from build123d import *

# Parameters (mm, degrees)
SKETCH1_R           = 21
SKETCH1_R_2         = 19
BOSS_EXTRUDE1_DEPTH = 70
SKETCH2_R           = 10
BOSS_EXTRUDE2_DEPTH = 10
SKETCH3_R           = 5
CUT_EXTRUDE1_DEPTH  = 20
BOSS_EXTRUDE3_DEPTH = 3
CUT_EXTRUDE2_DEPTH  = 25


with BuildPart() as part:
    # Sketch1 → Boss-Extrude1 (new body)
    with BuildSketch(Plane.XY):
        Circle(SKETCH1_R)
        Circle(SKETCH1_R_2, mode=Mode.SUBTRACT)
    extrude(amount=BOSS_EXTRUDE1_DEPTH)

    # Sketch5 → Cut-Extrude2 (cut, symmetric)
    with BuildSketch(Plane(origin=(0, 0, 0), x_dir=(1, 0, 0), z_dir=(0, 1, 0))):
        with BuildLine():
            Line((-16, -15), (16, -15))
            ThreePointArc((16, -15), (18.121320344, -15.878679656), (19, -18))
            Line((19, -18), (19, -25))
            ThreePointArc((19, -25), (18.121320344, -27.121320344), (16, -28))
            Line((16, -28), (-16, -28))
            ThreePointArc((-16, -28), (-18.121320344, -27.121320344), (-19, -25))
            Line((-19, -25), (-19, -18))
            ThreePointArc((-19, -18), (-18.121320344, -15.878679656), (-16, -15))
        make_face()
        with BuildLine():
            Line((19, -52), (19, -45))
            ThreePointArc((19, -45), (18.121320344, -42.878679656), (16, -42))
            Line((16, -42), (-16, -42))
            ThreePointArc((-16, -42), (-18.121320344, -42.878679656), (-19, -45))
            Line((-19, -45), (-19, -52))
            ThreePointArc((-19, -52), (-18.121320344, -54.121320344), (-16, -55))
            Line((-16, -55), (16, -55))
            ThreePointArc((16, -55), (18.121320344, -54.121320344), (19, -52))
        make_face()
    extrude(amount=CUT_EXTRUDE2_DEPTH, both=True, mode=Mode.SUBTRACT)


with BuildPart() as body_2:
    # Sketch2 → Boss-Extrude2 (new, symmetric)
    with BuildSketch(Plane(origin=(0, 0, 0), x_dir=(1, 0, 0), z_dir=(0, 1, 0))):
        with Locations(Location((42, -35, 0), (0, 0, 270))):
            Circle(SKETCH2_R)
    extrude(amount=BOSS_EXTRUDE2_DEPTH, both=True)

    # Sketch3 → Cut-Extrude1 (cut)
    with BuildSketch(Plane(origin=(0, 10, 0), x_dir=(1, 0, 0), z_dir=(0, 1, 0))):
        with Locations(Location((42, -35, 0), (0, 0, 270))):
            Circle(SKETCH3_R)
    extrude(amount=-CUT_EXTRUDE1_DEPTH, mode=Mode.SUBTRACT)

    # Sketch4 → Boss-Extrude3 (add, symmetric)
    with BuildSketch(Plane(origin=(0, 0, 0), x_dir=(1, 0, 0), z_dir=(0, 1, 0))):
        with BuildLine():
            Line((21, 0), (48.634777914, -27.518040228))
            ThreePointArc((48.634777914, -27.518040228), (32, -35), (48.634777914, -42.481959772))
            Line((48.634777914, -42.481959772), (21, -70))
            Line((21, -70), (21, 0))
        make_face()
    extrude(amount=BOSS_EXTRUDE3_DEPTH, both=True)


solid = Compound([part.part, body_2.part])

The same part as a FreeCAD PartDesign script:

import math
import FreeCAD as App
import Part
import Sketcher

V = App.Vector

doc = App.newDocument("Part")
body = doc.addObject("PartDesign::Body", "Body")

# Sketch on XY plane
sketch1 = doc.addObject("Sketcher::SketchObject", "Sketch")
body.addObject(sketch1)
sketch1.AttachmentSupport = (doc.XY_Plane, [""])
sketch1.MapMode = "FlatFace"
sketch1.addGeometry([
    Part.Circle(V(0, 0, 0), V(0, 0, 1), 21),
    Part.Circle(V(0, 0, 0), V(0, 0, 1), 19),
], False)
sketch1.addConstraint([
    Sketcher.Constraint("Coincident", 0, 3, -1, 1),
    Sketcher.Constraint("Coincident", 1, 3, -1, 1),
    Sketcher.Constraint("Diameter", 0, 42.0),
    Sketcher.Constraint("Diameter", 1, 38.0),
])
pad1 = doc.addObject("PartDesign::Pad", "Pad")
body.addObject(pad1)
pad1.Profile = sketch1
pad1.Length = 70

# Sketch on XZ plane
sketch2 = doc.addObject("Sketcher::SketchObject", "Sketch001")
body.addObject(sketch2)
sketch2.AttachmentSupport = (doc.XZ_Plane, [""])
sketch2.MapMode = "FlatFace"
sketch2.addGeometry([
    Part.LineSegment(V(16, 15, 0), V(-16, 15, 0)),  # 0
    Part.ArcOfCircle(Part.Circle(V(-16, 18, 0), V(0, 0, 1), 3), math.radians(180), math.radians(270)),  # 1
    Part.LineSegment(V(-19, 18, 0), V(-19, 25, 0)),  # 2
    Part.ArcOfCircle(Part.Circle(V(-16, 25, 0), V(0, 0, 1), 3), math.radians(90), math.radians(180)),  # 3
    Part.LineSegment(V(-16, 28, 0), V(16, 28, 0)),  # 4
    Part.ArcOfCircle(Part.Circle(V(16, 25, 0), V(0, 0, 1), 3), math.radians(0), math.radians(90)),  # 5
    Part.LineSegment(V(19, 25, 0), V(19, 18, 0)),  # 6
    Part.ArcOfCircle(Part.Circle(V(16, 18, 0), V(0, 0, 1), 3), math.radians(-90), math.radians(0)),  # 7
    Part.LineSegment(V(19, 52, 0), V(19, 45, 0)),  # 8
    Part.ArcOfCircle(Part.Circle(V(16, 45, 0), V(0, 0, 1), 3), math.radians(-90), math.radians(0)),  # 9
    Part.LineSegment(V(16, 42, 0), V(-16, 42, 0)),  # 10
    Part.ArcOfCircle(Part.Circle(V(-16, 45, 0), V(0, 0, 1), 3), math.radians(180), math.radians(270)),  # 11
    Part.LineSegment(V(-19, 45, 0), V(-19, 52, 0)),  # 12
    Part.ArcOfCircle(Part.Circle(V(-16, 52, 0), V(0, 0, 1), 3), math.radians(90), math.radians(180)),  # 13
    Part.LineSegment(V(-16, 55, 0), V(16, 55, 0)),  # 14
    Part.ArcOfCircle(Part.Circle(V(16, 52, 0), V(0, 0, 1), 3), math.radians(0), math.radians(90)),  # 15
], False)
sketch2.addConstraint([
    Sketcher.Constraint("Tangent", 0, 2, 1, 2),
    Sketcher.Constraint("Tangent", 1, 1, 2, 1),
    Sketcher.Constraint("Tangent", 2, 2, 3, 2),
    Sketcher.Constraint("Tangent", 3, 1, 4, 1),
    Sketcher.Constraint("Tangent", 4, 2, 5, 2),
    Sketcher.Constraint("Tangent", 5, 1, 6, 1),
    Sketcher.Constraint("Tangent", 6, 2, 7, 2),
    Sketcher.Constraint("Tangent", 7, 1, 0, 1),
    Sketcher.Constraint("Tangent", 8, 2, 9, 2),
    Sketcher.Constraint("Tangent", 9, 1, 10, 1),
    Sketcher.Constraint("Tangent", 10, 2, 11, 2),
    Sketcher.Constraint("Tangent", 11, 1, 12, 1),
    Sketcher.Constraint("Tangent", 12, 2, 13, 2),
    Sketcher.Constraint("Tangent", 13, 1, 14, 1),
    Sketcher.Constraint("Tangent", 14, 2, 15, 2),
    Sketcher.Constraint("Tangent", 15, 1, 8, 1),
    Sketcher.Constraint("Horizontal", 0),
    Sketcher.Constraint("Vertical", 2),
    Sketcher.Constraint("Horizontal", 4),
    Sketcher.Constraint("Vertical", 6),
    Sketcher.Constraint("Vertical", 8),
    Sketcher.Constraint("Horizontal", 10),
    Sketcher.Constraint("Vertical", 12),
    Sketcher.Constraint("Horizontal", 14),
    Sketcher.Constraint("Equal", 1, 3),
    Sketcher.Constraint("Equal", 3, 5),
    Sketcher.Constraint("Equal", 5, 7),
    Sketcher.Constraint("Equal", 7, 9),
    Sketcher.Constraint("Equal", 9, 11),
    Sketcher.Constraint("Equal", 11, 13),
    Sketcher.Constraint("Equal", 13, 15),
    Sketcher.Constraint("Vertical", 7, 3, 9, 3),
    Sketcher.Constraint("Vertical", 3, 3, 11, 3),
    Sketcher.Constraint("Equal", 6, 8),
    Sketcher.Constraint("Radius", 1, 3.0),
    Sketcher.Constraint("DistanceX", 0, 2, 0, 1, 32.0),
    Sketcher.Constraint("DistanceY", 2, 1, 2, 2, 7.0),
    Sketcher.Constraint("DistanceX", 1, 3, -1, 1, 16.0),
    Sketcher.Constraint("DistanceY", -1, 1, 1, 3, 18.0),
    Sketcher.Constraint("DistanceY", -1, 1, 9, 3, 45.0),
])
pocket1 = doc.addObject("PartDesign::Pocket", "Pocket")
body.addObject(pocket1)
pocket1.Profile = sketch2
pocket1.Length = 50
pocket1.Midplane = True
body2 = doc.addObject("PartDesign::Body", "Body001")

# Sketch on XZ plane
sketch3 = doc.addObject("Sketcher::SketchObject", "Sketch002")
body2.addObject(sketch3)
sketch3.AttachmentSupport = (doc.getObject("XZ_Plane001"), [""])
sketch3.MapMode = "FlatFace"
sketch3.addGeometry(Part.Circle(V(42, 35, 0), V(0, 0, 1), 10), False)
sketch3.addConstraint([
    Sketcher.Constraint("Diameter", 0, 20.0),
    Sketcher.Constraint("DistanceX", -1, 1, 0, 3, 42.0),
    Sketcher.Constraint("DistanceY", -1, 1, 0, 3, 35.0),
])
pad2 = doc.addObject("PartDesign::Pad", "Pad001")
body2.addObject(pad2)
pad2.Profile = sketch3
pad2.Length = 20
pad2.Midplane = True

# Sketch on XZ plane
sketch4 = doc.addObject("Sketcher::SketchObject", "Sketch003")
body2.addObject(sketch4)
sketch4.AttachmentSupport = (doc.getObject("XZ_Plane001"), [""])
sketch4.MapMode = "FlatFace"
sketch4.AttachmentOffset = App.Placement(V(0, 0, -10), App.Rotation())
sketch4.addGeometry(Part.Circle(V(42, 35, 0), V(0, 0, 1), 5), False)
sketch4.addConstraint([
    Sketcher.Constraint("Diameter", 0, 10.0),
    Sketcher.Constraint("DistanceX", -1, 1, 0, 3, 42.0),
    Sketcher.Constraint("DistanceY", -1, 1, 0, 3, 35.0),
])
pocket2 = doc.addObject("PartDesign::Pocket", "Pocket001")
body2.addObject(pocket2)
pocket2.Profile = sketch4
pocket2.Length = 20
pocket2.Reversed = True

# Sketch on XZ plane
sketch5 = doc.addObject("Sketcher::SketchObject", "Sketch004")
body2.addObject(sketch5)
sketch5.AttachmentSupport = (doc.getObject("XZ_Plane001"), [""])
sketch5.MapMode = "FlatFace"
sketch5.addGeometry([
    Part.LineSegment(V(49, 28, 0), V(21, 0, 0)),
    Part.LineSegment(V(21, 0, 0), V(21, 70, 0)),
    Part.LineSegment(V(21, 70, 0), V(49, 42, 0)),
    Part.ArcOfCircle(Part.Circle(V(42, 35, 0), V(0, 0, 1), 10), math.radians(48), math.radians(312)),
], False)
sketch5.addConstraint([
    Sketcher.Constraint("Coincident", 0, 2, 1, 1),
    Sketcher.Constraint("Coincident", 1, 2, 2, 1),
    Sketcher.Constraint("Coincident", 2, 2, 3, 1),
    Sketcher.Constraint("Coincident", 3, 2, 0, 1),
    Sketcher.Constraint("Vertical", 1),
    Sketcher.Constraint("PointOnObject", 0, 2, -1),
    Sketcher.Constraint("Vertical", 2, 2, 3, 2),
    Sketcher.Constraint("Equal", 0, 2),
    Sketcher.Constraint("Radius", 3, 10.0),
    Sketcher.Constraint("DistanceY", 1, 1, 1, 2, 70.0),
    Sketcher.Constraint("DistanceX", -1, 1, 3, 3, 42.0),
    Sketcher.Constraint("DistanceX", -1, 1, 0, 2, 21.0),
    Sketcher.Constraint("Distance", 0, 38.999019),
])
pad3 = doc.addObject("PartDesign::Pad", "Pad002")
body2.addObject(pad3)
pad3.Profile = sketch5
pad3.Length = 6
pad3.Midplane = True

doc.recompute()
